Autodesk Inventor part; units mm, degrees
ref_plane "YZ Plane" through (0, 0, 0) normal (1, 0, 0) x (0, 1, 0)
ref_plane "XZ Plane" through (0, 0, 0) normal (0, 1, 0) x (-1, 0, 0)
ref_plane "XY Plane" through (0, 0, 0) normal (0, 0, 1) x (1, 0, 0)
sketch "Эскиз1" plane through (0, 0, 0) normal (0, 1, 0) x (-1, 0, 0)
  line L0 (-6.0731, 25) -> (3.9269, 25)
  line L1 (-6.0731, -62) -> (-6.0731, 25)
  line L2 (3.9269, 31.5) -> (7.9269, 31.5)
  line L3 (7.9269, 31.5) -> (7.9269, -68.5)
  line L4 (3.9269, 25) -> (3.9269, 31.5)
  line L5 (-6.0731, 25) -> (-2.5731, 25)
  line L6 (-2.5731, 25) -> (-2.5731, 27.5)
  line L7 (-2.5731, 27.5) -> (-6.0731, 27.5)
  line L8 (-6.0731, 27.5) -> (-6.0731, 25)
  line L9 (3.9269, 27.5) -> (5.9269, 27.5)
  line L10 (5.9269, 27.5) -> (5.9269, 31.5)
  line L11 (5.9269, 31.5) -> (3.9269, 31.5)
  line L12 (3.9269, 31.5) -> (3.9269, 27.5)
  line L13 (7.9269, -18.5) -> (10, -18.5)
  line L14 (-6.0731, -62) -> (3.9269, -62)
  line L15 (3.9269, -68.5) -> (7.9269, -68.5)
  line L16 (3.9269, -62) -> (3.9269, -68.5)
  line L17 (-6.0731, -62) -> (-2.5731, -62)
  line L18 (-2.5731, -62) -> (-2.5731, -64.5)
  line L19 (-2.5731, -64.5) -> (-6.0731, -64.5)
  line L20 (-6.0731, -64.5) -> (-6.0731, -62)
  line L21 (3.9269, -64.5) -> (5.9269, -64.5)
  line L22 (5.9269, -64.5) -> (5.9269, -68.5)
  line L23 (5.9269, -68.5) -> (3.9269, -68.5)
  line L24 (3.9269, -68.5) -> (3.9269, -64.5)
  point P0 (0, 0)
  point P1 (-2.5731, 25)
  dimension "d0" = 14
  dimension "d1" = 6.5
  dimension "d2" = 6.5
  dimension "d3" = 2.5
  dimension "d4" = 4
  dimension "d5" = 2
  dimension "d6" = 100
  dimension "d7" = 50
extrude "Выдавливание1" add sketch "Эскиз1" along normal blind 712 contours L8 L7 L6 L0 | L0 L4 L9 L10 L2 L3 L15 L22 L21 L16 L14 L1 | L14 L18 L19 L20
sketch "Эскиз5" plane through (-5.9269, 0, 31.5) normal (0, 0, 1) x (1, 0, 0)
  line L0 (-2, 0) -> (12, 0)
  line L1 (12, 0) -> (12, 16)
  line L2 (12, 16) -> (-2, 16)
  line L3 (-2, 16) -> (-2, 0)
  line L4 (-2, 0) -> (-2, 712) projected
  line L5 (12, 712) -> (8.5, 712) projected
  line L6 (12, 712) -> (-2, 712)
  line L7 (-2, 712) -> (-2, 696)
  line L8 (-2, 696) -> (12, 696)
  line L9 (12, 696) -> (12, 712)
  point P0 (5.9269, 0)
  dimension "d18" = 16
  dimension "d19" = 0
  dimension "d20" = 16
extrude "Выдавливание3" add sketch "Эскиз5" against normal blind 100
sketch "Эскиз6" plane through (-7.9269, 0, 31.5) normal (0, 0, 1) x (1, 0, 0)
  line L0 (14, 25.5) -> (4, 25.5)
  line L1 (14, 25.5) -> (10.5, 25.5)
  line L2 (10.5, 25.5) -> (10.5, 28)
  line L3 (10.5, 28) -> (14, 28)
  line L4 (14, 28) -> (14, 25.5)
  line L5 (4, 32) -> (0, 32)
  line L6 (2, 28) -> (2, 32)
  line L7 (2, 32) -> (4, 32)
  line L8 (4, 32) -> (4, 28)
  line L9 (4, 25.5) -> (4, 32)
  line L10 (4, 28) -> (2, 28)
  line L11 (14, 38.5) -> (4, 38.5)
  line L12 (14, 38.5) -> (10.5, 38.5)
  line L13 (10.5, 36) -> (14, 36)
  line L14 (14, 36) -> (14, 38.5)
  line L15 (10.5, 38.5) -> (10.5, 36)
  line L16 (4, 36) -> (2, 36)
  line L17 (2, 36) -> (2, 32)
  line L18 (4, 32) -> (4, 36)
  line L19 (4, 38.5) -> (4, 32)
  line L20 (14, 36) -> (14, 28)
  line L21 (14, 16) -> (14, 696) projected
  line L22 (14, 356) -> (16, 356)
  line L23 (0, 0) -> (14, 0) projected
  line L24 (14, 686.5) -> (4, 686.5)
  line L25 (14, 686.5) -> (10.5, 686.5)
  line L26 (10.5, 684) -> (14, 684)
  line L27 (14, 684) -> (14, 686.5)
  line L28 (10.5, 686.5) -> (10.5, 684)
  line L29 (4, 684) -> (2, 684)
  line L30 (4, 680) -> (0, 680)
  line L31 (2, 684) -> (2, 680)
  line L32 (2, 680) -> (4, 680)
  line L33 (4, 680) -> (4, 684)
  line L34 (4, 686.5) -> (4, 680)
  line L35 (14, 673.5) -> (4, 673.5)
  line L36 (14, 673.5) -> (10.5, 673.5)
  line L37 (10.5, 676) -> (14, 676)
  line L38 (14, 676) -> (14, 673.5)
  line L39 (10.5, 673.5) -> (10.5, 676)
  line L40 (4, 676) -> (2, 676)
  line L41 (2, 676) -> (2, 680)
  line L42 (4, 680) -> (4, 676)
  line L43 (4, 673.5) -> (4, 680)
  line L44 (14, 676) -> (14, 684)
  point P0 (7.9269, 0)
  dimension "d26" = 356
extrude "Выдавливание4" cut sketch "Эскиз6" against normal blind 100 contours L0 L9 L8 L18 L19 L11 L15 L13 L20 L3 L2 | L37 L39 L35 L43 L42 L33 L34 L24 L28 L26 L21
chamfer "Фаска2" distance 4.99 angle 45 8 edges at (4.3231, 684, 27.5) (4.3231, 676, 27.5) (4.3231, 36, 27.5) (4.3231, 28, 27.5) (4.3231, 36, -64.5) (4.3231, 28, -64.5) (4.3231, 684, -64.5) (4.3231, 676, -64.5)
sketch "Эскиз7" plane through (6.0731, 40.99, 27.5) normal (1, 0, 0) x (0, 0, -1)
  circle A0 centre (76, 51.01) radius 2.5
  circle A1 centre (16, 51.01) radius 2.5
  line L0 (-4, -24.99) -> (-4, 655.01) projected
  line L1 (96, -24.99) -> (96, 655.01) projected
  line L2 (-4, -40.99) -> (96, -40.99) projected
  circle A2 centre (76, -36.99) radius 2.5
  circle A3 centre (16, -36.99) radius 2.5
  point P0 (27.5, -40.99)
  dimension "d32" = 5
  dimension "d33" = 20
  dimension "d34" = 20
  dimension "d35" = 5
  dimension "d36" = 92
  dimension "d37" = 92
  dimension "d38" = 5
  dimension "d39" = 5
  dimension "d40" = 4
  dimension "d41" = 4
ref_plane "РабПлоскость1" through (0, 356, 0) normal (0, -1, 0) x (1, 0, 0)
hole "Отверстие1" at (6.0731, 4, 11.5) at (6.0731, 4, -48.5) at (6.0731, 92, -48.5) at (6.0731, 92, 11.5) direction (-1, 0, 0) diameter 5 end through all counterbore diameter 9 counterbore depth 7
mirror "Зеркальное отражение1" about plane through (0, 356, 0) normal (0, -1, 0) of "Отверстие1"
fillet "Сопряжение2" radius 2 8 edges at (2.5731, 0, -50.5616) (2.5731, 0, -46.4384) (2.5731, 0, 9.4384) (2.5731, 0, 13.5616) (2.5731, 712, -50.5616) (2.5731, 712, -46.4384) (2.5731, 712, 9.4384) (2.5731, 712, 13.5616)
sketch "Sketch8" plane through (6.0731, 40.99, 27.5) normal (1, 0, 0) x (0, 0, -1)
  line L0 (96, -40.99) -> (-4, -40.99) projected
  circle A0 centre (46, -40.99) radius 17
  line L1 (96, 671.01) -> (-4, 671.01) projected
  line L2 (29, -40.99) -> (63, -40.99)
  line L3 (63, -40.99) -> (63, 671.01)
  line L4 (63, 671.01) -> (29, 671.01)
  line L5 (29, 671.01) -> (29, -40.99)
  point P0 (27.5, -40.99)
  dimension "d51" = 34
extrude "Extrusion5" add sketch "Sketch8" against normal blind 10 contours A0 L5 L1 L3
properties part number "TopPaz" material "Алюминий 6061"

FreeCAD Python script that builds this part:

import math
import FreeCAD as App
import Part
import Sketcher


def edges_at(feature, points):
    """Names of the edges that pass closest to the given points."""
    edges = feature.Shape.Edges
    near = lambda p: min(range(len(edges)), key=lambda i: edges[i].distToShape(Part.Vertex(*p))[0])
    return sorted({f"Edge{near(p) + 1}" for p in points})

doc = App.newDocument("Part")
body = doc.addObject("PartDesign::Body", "Body")

# Sketch on XZ plane
sketch1 = doc.addObject("Sketcher::SketchObject", "Sketch")
body.addObject(sketch1)
sketch1.AttachmentSupport = (doc.XZ_Plane, [""])
sketch1.MapMode = "FlatFace"
sketch1.addGeometry(Part.LineSegment(App.Vector(6.0731, 27.5, 0), App.Vector(6.0731, -64.5, 0)), False)
sketch1.addGeometry(Part.LineSegment(App.Vector(6.0731, -64.5, 0), App.Vector(2.5731, -64.5, 0)), False)
sketch1.addGeometry(Part.LineSegment(App.Vector(2.5731, -64.5, 0), App.Vector(2.5731, -62, 0)), False)
sketch1.addGeometry(Part.LineSegment(App.Vector(2.5731, -62, 0), App.Vector(-3.9269, -62, 0)), False)
sketch1.addGeometry(Part.LineSegment(App.Vector(-3.9269, -62, 0), App.Vector(-3.9269, -64.5, 0)), False)
sketch1.addGeometry(Part.LineSegment(App.Vector(-3.9269, -64.5, 0), App.Vector(-5.9269, -64.5, 0)), False)
sketch1.addGeometry(Part.LineSegment(App.Vector(-5.9269, -64.5, 0), App.Vector(-5.9269, -68.5, 0)), False)
sketch1.addGeometry(Part.LineSegment(App.Vector(-5.9269, -68.5, 0), App.Vector(-7.9269, -68.5, 0)), False)
sketch1.addGeometry(Part.LineSegment(App.Vector(-7.9269, -68.5, 0), App.Vector(-7.9269, 31.5, 0)), False)
sketch1.addGeometry(Part.LineSegment(App.Vector(-7.9269, 31.5, 0), App.Vector(-5.9269, 31.5, 0)), False)
sketch1.addGeometry(Part.LineSegment(App.Vector(-5.9269, 31.5, 0), App.Vector(-5.9269, 27.5, 0)), False)
sketch1.addGeometry(Part.LineSegment(App.Vector(-5.9269, 27.5, 0), App.Vector(-3.9269, 27.5, 0)), False)
sketch1.addGeometry(Part.LineSegment(App.Vector(-3.9269, 27.5, 0), App.Vector(-3.9269, 25, 0)), False)
sketch1.addGeometry(Part.LineSegment(App.Vector(-3.9269, 25, 0), App.Vector(2.5731, 25, 0)), False)
sketch1.addGeometry(Part.LineSegment(App.Vector(2.5731, 25, 0), App.Vector(2.5731, 27.5, 0)), False)
sketch1.addGeometry(Part.LineSegment(App.Vector(2.5731, 27.5, 0), App.Vector(6.0731, 27.5, 0)), False)
sketch1.addConstraint(Sketcher.Constraint("Coincident", 0, 2, 1, 1))
sketch1.addConstraint(Sketcher.Constraint("Coincident", 1, 2, 2, 1))
sketch1.addConstraint(Sketcher.Constraint("Coincident", 2, 2, 3, 1))
sketch1.addConstraint(Sketcher.Constraint("Coincident", 3, 2, 4, 1))
sketch1.addConstraint(Sketcher.Constraint("Coincident", 4, 2, 5, 1))
sketch1.addConstraint(Sketcher.Constraint("Coincident", 5, 2, 6, 1))
sketch1.addConstraint(Sketcher.Constraint("Coincident", 6, 2, 7, 1))
sketch1.addConstraint(Sketcher.Constraint("Coincident", 7, 2, 8, 1))
sketch1.addConstraint(Sketcher.Constraint("Coincident", 8, 2, 9, 1))
sketch1.addConstraint(Sketcher.Constraint("Coincident", 9, 2, 10, 1))
sketch1.addConstraint(Sketcher.Constraint("Coincident", 10, 2, 11, 1))
sketch1.addConstraint(Sketcher.Constraint("Coincident", 11, 2, 12, 1))
sketch1.addConstraint(Sketcher.Constraint("Coincident", 12, 2, 13, 1))
sketch1.addConstraint(Sketcher.Constraint("Coincident", 13, 2, 14, 1))
sketch1.addConstraint(Sketcher.Constraint("Coincident", 14, 2, 15, 1))
sketch1.addConstraint(Sketcher.Constraint("Coincident", 15, 2, 0, 1))
sketch1.addConstraint(Sketcher.Constraint("Vertical", 0))
sketch1.addConstraint(Sketcher.Constraint("Horizontal", 1))
sketch1.addConstraint(Sketcher.Constraint("Vertical", 2))
sketch1.addConstraint(Sketcher.Constraint("Horizontal", 3))
sketch1.addConstraint(Sketcher.Constraint("Vertical", 4))
sketch1.addConstraint(Sketcher.Constraint("Horizontal", 5))
sketch1.addConstraint(Sketcher.Constraint("Vertical", 6))
sketch1.addConstraint(Sketcher.Constraint("Horizontal", 7))
sketch1.addConstraint(Sketcher.Constraint("Vertical", 8))
sketch1.addConstraint(Sketcher.Constraint("Horizontal", 9))
sketch1.addConstraint(Sketcher.Constraint("Vertical", 10))
sketch1.addConstraint(Sketcher.Constraint("Horizontal", 11))
sketch1.addConstraint(Sketcher.Constraint("Vertical", 12))
sketch1.addConstraint(Sketcher.Constraint("Horizontal", 13))
sketch1.addConstraint(Sketcher.Constraint("Vertical", 14))
sketch1.addConstraint(Sketcher.Constraint("Horizontal", 15))
sketch1.addConstraint(Sketcher.Constraint("Horizontal", 1, 2, 4, 2))
sketch1.addConstraint(Sketcher.Constraint("Horizontal", 11, 2, 14, 2))
sketch1.addConstraint(Sketcher.Constraint("Vertical", 6, 2, 9, 2))
sketch1.addConstraint(Sketcher.Constraint("Vertical", 4, 2, 11, 2))
sketch1.addConstraint(Sketcher.Constraint("Vertical", 2, 2, 13, 2))
sketch1.addConstraint(Sketcher.Constraint("Equal", 5, 7))
sketch1.addConstraint(Sketcher.Constraint("Equal", 6, 10))
sketch1.addConstraint(Sketcher.Constraint("Equal", 4, 12))
sketch1.addConstraint(Sketcher.Constraint("DistanceX", 5, 2, 5, 1, 2.0))
sketch1.addConstraint(Sketcher.Constraint("DistanceY", 6, 2, 6, 1, 4.0))
sketch1.addConstraint(Sketcher.Constraint("DistanceY", 8, 1, 8, 2, 100.0))
sketch1.addConstraint(Sketcher.Constraint("DistanceX", 3, 2, 3, 1, 6.5))
sketch1.addConstraint(Sketcher.Constraint("DistanceY", 2, 1, 2, 2, 2.5))
sketch1.addConstraint(Sketcher.Constraint("DistanceX", 1, 2, 1, 1, 3.5))
sketch1.addConstraint(Sketcher.Constraint("DistanceY", 2, 2, -1, 1, 62.0))
sketch1.addConstraint(Sketcher.Constraint("DistanceX", -1, 1, 0, 2, 6.073))
pad1 = doc.addObject("PartDesign::Pad", "Pad")
body.addObject(pad1)
pad1.Profile = sketch1
pad1.Length = 712
pad1.Reversed = True

# Sketch on XY plane
sketch2 = doc.addObject("Sketcher::SketchObject", "Sketch001")
body.addObject(sketch2)
sketch2.AttachmentSupport = (doc.XY_Plane, [""])
sketch2.MapMode = "FlatFace"
sketch2.AttachmentOffset = App.Placement(App.Vector(0, 0, 31.5), App.Rotation())
sketch2.addGeometry(Part.LineSegment(App.Vector(-7.9269, 16, 0), App.Vector(-7.9269, 0, 0)), False)
sketch2.addGeometry(Part.LineSegment(App.Vector(-7.9269, 0, 0), App.Vector(6.0731, 0, 0)), False)
sketch2.addGeometry(Part.LineSegment(App.Vector(6.0731, 0, 0), App.Vector(6.0731, 16, 0)), False)
sketch2.addGeometry(Part.LineSegment(App.Vector(6.0731, 16, 0), App.Vector(-7.9269, 16, 0)), False)
sketch2.addGeometry(Part.LineSegment(App.Vector(-7.9269, 712, 0), App.Vector(-7.9269, 696, 0)), False)
sketch2.addGeometry(Part.LineSegment(App.Vector(-7.9269, 696, 0), App.Vector(6.0731, 696, 0)), False)
sketch2.addGeometry(Part.LineSegment(App.Vector(6.0731, 696, 0), App.Vector(6.0731, 712, 0)), False)
sketch2.addGeometry(Part.LineSegment(App.Vector(6.0731, 712, 0), App.Vector(-7.9269, 712, 0)), False)
sketch2.addConstraint(Sketcher.Constraint("Coincident", 0, 2, 1, 1))
sketch2.addConstraint(Sketcher.Constraint("Coincident", 1, 2, 2, 1))
sketch2.addConstraint(Sketcher.Constraint("Coincident", 2, 2, 3, 1))
sketch2.addConstraint(Sketcher.Constraint("Coincident", 3, 2, 0, 1))
sketch2.addConstraint(Sketcher.Constraint("Coincident", 4, 2, 5, 1))
sketch2.addConstraint(Sketcher.Constraint("Coincident", 5, 2, 6, 1))
sketch2.addConstraint(Sketcher.Constraint("Coincident", 6, 2, 7, 1))
sketch2.addConstraint(Sketcher.Constraint("Coincident", 7, 2, 4, 1))
sketch2.addConstraint(Sketcher.Constraint("Vertical", 0))
sketch2.addConstraint(Sketcher.Constraint("Horizontal", 1))
sketch2.addConstraint(Sketcher.Constraint("Vertical", 2))
sketch2.addConstraint(Sketcher.Constraint("Horizontal", 3))
sketch2.addConstraint(Sketcher.Constraint("Vertical", 4))
sketch2.addConstraint(Sketcher.Constraint("Horizontal", 5))
sketch2.addConstraint(Sketcher.Constraint("Vertical", 6))
sketch2.addConstraint(Sketcher.Constraint("Horizontal", 7))
sketch2.addConstraint(Sketcher.Constraint("PointOnObject", 0, 2, -1))
sketch2.addConstraint(Sketcher.Constraint("Vertical", 3, 2, 4, 2))
sketch2.addConstraint(Sketcher.Constraint("Vertical", 2, 2, 5, 2))
sketch2.addConstraint(Sketcher.Constraint("Equal", 2, 4))
sketch2.addConstraint(Sketcher.Constraint("DistanceY", 0, 2, 0, 1, 16.0))
sketch2.addConstraint(Sketcher.Constraint("DistanceX", 1, 1, 1, 2, 14.0))
sketch2.addConstraint(Sketcher.Constraint("DistanceY", -1, 1, 4, 2, 696.0))
sketch2.addConstraint(Sketcher.Constraint("DistanceX", 0, 2, -1, 1, 7.927))
pad2 = doc.addObject("PartDesign::Pad", "Pad001")
body.addObject(pad2)
pad2.Profile = sketch2
pad2.Length = 100
pad2.Reversed = True

# Sketch on XY plane
sketch3 = doc.addObject("Sketcher::SketchObject", "Sketch002")
body.addObject(sketch3)
sketch3.AttachmentSupport = (doc.XY_Plane, [""])
sketch3.MapMode = "FlatFace"
sketch3.AttachmentOffset = App.Placement(App.Vector(0, 0, 31.5), App.Rotation())
sketch3.addGeometry(Part.LineSegment(App.Vector(-3.9269, 25.5, 0), App.Vector(2.5731, 25.5, 0)), False)
sketch3.addGeometry(Part.LineSegment(App.Vector(2.5731, 25.5, 0), App.Vector(2.5731, 28, 0)), False)
sketch3.addGeometry(Part.LineSegment(App.Vector(2.5731, 28, 0), App.Vector(6.0731, 28, 0)), False)
sketch3.addGeometry(Part.LineSegment(App.Vector(6.0731, 28, 0), App.Vector(6.0731, 36, 0)), False)
sketch3.addGeometry(Part.LineSegment(App.Vector(6.0731, 36, 0), App.Vector(2.5731, 36, 0)), False)
sketch3.addGeometry(Part.LineSegment(App.Vector(2.5731, 36, 0), App.Vector(2.5731, 38.5, 0)), False)
sketch3.addGeometry(Part.LineSegment(App.Vector(2.5731, 38.5, 0), App.Vector(-3.9269, 38.5, 0)), False)
sketch3.addGeometry(Part.LineSegment(App.Vector(-3.9269, 38.5, 0), App.Vector(-3.9269, 25.5, 0)), False)
sketch3.addGeometry(Part.LineSegment(App.Vector(2.5731, 676, 0), App.Vector(6.0731, 676, 0)), False)
sketch3.addGeometry(Part.LineSegment(App.Vector(6.0731, 676, 0), App.Vector(6.0731, 684, 0)), False)
sketch3.addGeometry(Part.LineSegment(App.Vector(6.0731, 684, 0), App.Vector(2.5731, 684, 0)), False)
sketch3.addGeometry(Part.LineSegment(App.Vector(2.5731, 684, 0), App.Vector(2.5731, 686.5, 0)), False)
sketch3.addGeometry(Part.LineSegment(App.Vector(2.5731, 686.5, 0), App.Vector(-3.9269, 686.5, 0)), False)
sketch3.addGeometry(Part.LineSegment(App.Vector(-3.9269, 686.5, 0), App.Vector(-3.9269, 673.5, 0)), False)
sketch3.addGeometry(Part.LineSegment(App.Vector(-3.9269, 673.5, 0), App.Vector(2.5731, 673.5, 0)), False)
sketch3.addGeometry(Part.LineSegment(App.Vector(2.5731, 673.5, 0), App.Vector(2.5731, 676, 0)), False)
sketch3.addConstraint(Sketcher.Constraint("Coincident", 0, 2, 1, 1))
sketch3.addConstraint(Sketcher.Constraint("Coincident", 1, 2, 2, 1))
sketch3.addConstraint(Sketcher.Constraint("Coincident", 2, 2, 3, 1))
sketch3.addConstraint(Sketcher.Constraint("Coincident", 3, 2, 4, 1))
sketch3.addConstraint(Sketcher.Constraint("Coincident", 4, 2, 5, 1))
sketch3.addConstraint(Sketcher.Constraint("Coincident", 5, 2, 6, 1))
sketch3.addConstraint(Sketcher.Constraint("Coincident", 6, 2, 7, 1))
sketch3.addConstraint(Sketcher.Constraint("Coincident", 7, 2, 0, 1))
sketch3.addConstraint(Sketcher.Constraint("Coincident", 8, 2, 9, 1))
sketch3.addConstraint(Sketcher.Constraint("Coincident", 9, 2, 10, 1))
sketch3.addConstraint(Sketcher.Constraint("Coincident", 10, 2, 11, 1))
sketch3.addConstraint(Sketcher.Constraint("Coincident", 11, 2, 12, 1))
sketch3.addConstraint(Sketcher.Constraint("Coincident", 12, 2, 13, 1))
sketch3.addConstraint(Sketcher.Constraint("Coincident", 13, 2, 14, 1))
sketch3.addConstraint(Sketcher.Constraint("Coincident", 14, 2, 15, 1))
sketch3.addConstraint(Sketcher.Constraint("Coincident", 15, 2, 8, 1))
sketch3.addConstraint(Sketcher.Constraint("Horizontal", 0))
sketch3.addConstraint(Sketcher.Constraint("Vertical", 1))
sketch3.addConstraint(Sketcher.Constraint("Horizontal", 2))
sketch3.addConstraint(Sketcher.Constraint("Vertical", 3))
sketch3.addConstraint(Sketcher.Constraint("Horizontal", 4))
sketch3.addConstraint(Sketcher.Constraint("Vertical", 5))
sketch3.addConstraint(Sketcher.Constraint("Horizontal", 6))
sketch3.addConstraint(Sketcher.Constraint("Vertical", 7))
sketch3.addConstraint(Sketcher.Constraint("Horizontal", 8))
sketch3.addConstraint(Sketcher.Constraint("Vertical", 9))
sketch3.addConstraint(Sketcher.Constraint("Horizontal", 10))
sketch3.addConstraint(Sketcher.Constraint("Vertical", 11))
sketch3.addConstraint(Sketcher.Constraint("Horizontal", 12))
sketch3.addConstraint(Sketcher.Constraint("Vertical", 13))
sketch3.addConstraint(Sketcher.Constraint("Horizontal", 14))
sketch3.addConstraint(Sketcher.Constraint("Vertical", 15))
sketch3.addConstraint(Sketcher.Constraint("Vertical", 1, 2, 4, 2))
sketch3.addConstraint(Sketcher.Constraint("Vertical", 3, 2, 8, 2))
sketch3.addConstraint(Sketcher.Constraint("Vertical", 5, 2, 10, 2))
sketch3.addConstraint(Sketcher.Constraint("Vertical", 7, 2, 12, 2))
sketch3.addConstraint(Sketcher.Constraint("Vertical", 11, 2, 14, 2))
sketch3.addConstraint(Sketcher.Constraint("Equal", 1, 5))
sketch3.addConstraint(Sketcher.Constraint("Equal", 3, 9))
sketch3.addConstraint(Sketcher.Constraint("Equal", 5, 11))
sketch3.addConstraint(Sketcher.Constraint("Equal", 7, 13))
sketch3.addConstraint(Sketcher.Constraint("DistanceY", 3, 1, 3, 2, 8.0))
sketch3.addConstraint(Sketcher.Constraint("DistanceY", 7, 2, 7, 1, 13.0))
sketch3.addConstraint(Sketcher.Constraint("DistanceX", 0, 1, 0, 2, 6.5))
sketch3.addConstraint(Sketcher.Constraint("DistanceX", 2, 1, 2, 2, 3.5))
sketch3.addConstraint(Sketcher.Constraint("DistanceY", -1, 1, 1, 2, 28.0))
sketch3.addConstraint(Sketcher.Constraint("DistanceY", -1, 1, 8, 2, 676.0))
sketch3.addConstraint(Sketcher.Constraint("DistanceX", -1, 1, 0, 2, 2.573))
pocket1 = doc.addObject("PartDesign::Pocket", "Pocket")
body.addObject(pocket1)
pocket1.Profile = sketch3
pocket1.Length = 100
doc.recompute()

chamfer = doc.addObject("PartDesign::Chamfer", "Chamfer")
body.addObject(chamfer)
chamfer.Base = (pocket1, edges_at(pocket1, [
    (4.323, 684, 27.5),
    (4.323, 676, 27.5),
    (4.323, 36, 27.5),
    (4.323, 28, 27.5),
    (4.323, 36, -64.5),
    (4.323, 28, -64.5),
    (4.323, 684, -64.5),
    (4.323, 676, -64.5),
]))
chamfer.Size = 4.99

# Sketch on YZ plane
sketch4 = doc.addObject("Sketcher::SketchObject", "Sketch003")
body.addObject(sketch4)
sketch4.AttachmentSupport = (doc.YZ_Plane, [""])
sketch4.MapMode = "FlatFace"
sketch4.AttachmentOffset = App.Placement(App.Vector(0, 0, 6.0731), App.Rotation())
sketch4.addGeometry(Part.Circle(App.Vector(4, 11.5, 0), App.Vector(0, 0, 1), 2.5), False)
sketch4.addGeometry(Part.Circle(App.Vector(4, -48.5, 0), App.Vector(0, 0, 1), 2.5), False)
sketch4.addGeometry(Part.Circle(App.Vector(92, -48.5, 0), App.Vector(0, 0, 1), 2.5), False)
sketch4.addGeometry(Part.Circle(App.Vector(92, 11.5, 0), App.Vector(0, 0, 1), 2.5), False)
sketch4.addConstraint(Sketcher.Constraint("Equal", 0, 1))
sketch4.addConstraint(Sketcher.Constraint("Equal", 1, 2))
sketch4.addConstraint(Sketcher.Constraint("Equal", 2, 3))
sketch4.addConstraint(Sketcher.Constraint("Horizontal", 1, 3, 2, 3))
sketch4.addConstraint(Sketcher.Constraint("Horizontal", 0, 3, 3, 3))
sketch4.addConstraint(Sketcher.Constraint("Vertical", 0, 3, 1, 3))
sketch4.addConstraint(Sketcher.Constraint("Vertical", 2, 3, 3, 3))
sketch4.addConstraint(Sketcher.Constraint("Diameter", 0, 5.0))
sketch4.addConstraint(Sketcher.Constraint("DistanceX", -1, 1, 0, 3, 4.0))
sketch4.addConstraint(Sketcher.Constraint("DistanceX", -1, 1, 2, 3, 92.0))
sketch4.addConstraint(Sketcher.Constraint("DistanceY", 1, 3, 0, 3, 60.0))
sketch4.addConstraint(Sketcher.Constraint("DistanceY", -1, 1, 0, 3, 11.5))
doc.recompute()
hole = doc.addObject("PartDesign::Hole", "Hole")
body.addObject(hole)
hole.Profile = sketch4
hole.ThreadType = "None"
hole.Diameter = 5
hole.DepthType = "ThroughAll"
hole.HoleCutType = "Counterbore"
hole.HoleCutDiameter = 9
hole.HoleCutDepth = 7
doc.recompute()

datumplane = doc.addObject("PartDesign::Plane", "DatumPlane")
body.addObject(datumplane)
datumplane.AttachmentSupport = (doc.XZ_Plane, [""])
datumplane.MapMode = "FlatFace"
datumplane.AttachmentOffset = App.Placement(App.Vector(0, 0, -356), App.Rotation())
mirrored = doc.addObject("PartDesign::Mirrored", "Mirrored")
body.addObject(mirrored)
mirrored.Originals = [hole]
mirrored.MirrorPlane = (datumplane, [""])
body.Tip = mirrored
doc.recompute()

fillet = doc.addObject("PartDesign::Fillet", "Fillet")
body.addObject(fillet)
fillet.Base = (mirrored, edges_at(mirrored, [
    (2.573, 0, -50.562),
    (2.573, 0, -46.438),
    (2.573, 0, 9.438),
    (2.573, 0, 13.562),
    (2.573, 712, -50.562),
    (2.573, 712, -46.438),
    (2.573, 712, 9.438),
    (2.573, 712, 13.562),
]))
fillet.Radius = 2

# Sketch on YZ plane
sketch5 = doc.addObject("Sketcher::SketchObject", "Sketch004")
body.addObject(sketch5)
sketch5.AttachmentSupport = (doc.YZ_Plane, [""])
sketch5.MapMode = "FlatFace"
sketch5.AttachmentOffset = App.Placement(App.Vector(0, 0, 6.0731), App.Rotation())
sketch5.addGeometry(Part.ArcOfCircle(Part.Circle(App.Vector(0, -18.5, 0), App.Vector(0, 0, 1), 17), math.radians(-90), math.radians(90)), False)
sketch5.addGeometry(Part.LineSegment(App.Vector(0, -35.5, 0), App.Vector(712, -35.5, 0)), False)
sketch5.addGeometry(Part.LineSegment(App.Vector(712, -35.5, 0), App.Vector(712, -1.5, 0)), False)
sketch5.addGeometry(Part.LineSegment(App.Vector(712, -1.5, 0), App.Vector(0, -1.5, 0)), False)
sketch5.addConstraint(Sketcher.Constraint("Tangent", 0, 1, 1, 1))
sketch5.addConstraint(Sketcher.Constraint("Coincident", 1, 2, 2, 1))
sketch5.addConstraint(Sketcher.Constraint("Coincident", 2, 2, 3, 1))
sketch5.addConstraint(Sketcher.Constraint("Tangent", 3, 2, 0, 2))
sketch5.addConstraint(Sketcher.Constraint("Horizontal", 1))
sketch5.addConstraint(Sketcher.Constraint("Vertical", 2))
sketch5.addConstraint(Sketcher.Constraint("Horizontal", 3))
sketch5.addConstraint(Sketcher.Constraint("PointOnObject", 0, 3, -2))
sketch5.addConstraint(Sketcher.Constraint("Radius", 0, 17.0))
sketch5.addConstraint(Sketcher.Constraint("DistanceX", 1, 1, 1, 2, 712.0))
sketch5.addConstraint(Sketcher.Constraint("DistanceY", 0, 3, -1, 1, 18.5))
pad3 = doc.addObject("PartDesign::Pad", "Pad002")
body.addObject(pad3)
pad3.Profile = sketch5
pad3.Length = 10
pad3.Reversed = True

doc.recompute()
